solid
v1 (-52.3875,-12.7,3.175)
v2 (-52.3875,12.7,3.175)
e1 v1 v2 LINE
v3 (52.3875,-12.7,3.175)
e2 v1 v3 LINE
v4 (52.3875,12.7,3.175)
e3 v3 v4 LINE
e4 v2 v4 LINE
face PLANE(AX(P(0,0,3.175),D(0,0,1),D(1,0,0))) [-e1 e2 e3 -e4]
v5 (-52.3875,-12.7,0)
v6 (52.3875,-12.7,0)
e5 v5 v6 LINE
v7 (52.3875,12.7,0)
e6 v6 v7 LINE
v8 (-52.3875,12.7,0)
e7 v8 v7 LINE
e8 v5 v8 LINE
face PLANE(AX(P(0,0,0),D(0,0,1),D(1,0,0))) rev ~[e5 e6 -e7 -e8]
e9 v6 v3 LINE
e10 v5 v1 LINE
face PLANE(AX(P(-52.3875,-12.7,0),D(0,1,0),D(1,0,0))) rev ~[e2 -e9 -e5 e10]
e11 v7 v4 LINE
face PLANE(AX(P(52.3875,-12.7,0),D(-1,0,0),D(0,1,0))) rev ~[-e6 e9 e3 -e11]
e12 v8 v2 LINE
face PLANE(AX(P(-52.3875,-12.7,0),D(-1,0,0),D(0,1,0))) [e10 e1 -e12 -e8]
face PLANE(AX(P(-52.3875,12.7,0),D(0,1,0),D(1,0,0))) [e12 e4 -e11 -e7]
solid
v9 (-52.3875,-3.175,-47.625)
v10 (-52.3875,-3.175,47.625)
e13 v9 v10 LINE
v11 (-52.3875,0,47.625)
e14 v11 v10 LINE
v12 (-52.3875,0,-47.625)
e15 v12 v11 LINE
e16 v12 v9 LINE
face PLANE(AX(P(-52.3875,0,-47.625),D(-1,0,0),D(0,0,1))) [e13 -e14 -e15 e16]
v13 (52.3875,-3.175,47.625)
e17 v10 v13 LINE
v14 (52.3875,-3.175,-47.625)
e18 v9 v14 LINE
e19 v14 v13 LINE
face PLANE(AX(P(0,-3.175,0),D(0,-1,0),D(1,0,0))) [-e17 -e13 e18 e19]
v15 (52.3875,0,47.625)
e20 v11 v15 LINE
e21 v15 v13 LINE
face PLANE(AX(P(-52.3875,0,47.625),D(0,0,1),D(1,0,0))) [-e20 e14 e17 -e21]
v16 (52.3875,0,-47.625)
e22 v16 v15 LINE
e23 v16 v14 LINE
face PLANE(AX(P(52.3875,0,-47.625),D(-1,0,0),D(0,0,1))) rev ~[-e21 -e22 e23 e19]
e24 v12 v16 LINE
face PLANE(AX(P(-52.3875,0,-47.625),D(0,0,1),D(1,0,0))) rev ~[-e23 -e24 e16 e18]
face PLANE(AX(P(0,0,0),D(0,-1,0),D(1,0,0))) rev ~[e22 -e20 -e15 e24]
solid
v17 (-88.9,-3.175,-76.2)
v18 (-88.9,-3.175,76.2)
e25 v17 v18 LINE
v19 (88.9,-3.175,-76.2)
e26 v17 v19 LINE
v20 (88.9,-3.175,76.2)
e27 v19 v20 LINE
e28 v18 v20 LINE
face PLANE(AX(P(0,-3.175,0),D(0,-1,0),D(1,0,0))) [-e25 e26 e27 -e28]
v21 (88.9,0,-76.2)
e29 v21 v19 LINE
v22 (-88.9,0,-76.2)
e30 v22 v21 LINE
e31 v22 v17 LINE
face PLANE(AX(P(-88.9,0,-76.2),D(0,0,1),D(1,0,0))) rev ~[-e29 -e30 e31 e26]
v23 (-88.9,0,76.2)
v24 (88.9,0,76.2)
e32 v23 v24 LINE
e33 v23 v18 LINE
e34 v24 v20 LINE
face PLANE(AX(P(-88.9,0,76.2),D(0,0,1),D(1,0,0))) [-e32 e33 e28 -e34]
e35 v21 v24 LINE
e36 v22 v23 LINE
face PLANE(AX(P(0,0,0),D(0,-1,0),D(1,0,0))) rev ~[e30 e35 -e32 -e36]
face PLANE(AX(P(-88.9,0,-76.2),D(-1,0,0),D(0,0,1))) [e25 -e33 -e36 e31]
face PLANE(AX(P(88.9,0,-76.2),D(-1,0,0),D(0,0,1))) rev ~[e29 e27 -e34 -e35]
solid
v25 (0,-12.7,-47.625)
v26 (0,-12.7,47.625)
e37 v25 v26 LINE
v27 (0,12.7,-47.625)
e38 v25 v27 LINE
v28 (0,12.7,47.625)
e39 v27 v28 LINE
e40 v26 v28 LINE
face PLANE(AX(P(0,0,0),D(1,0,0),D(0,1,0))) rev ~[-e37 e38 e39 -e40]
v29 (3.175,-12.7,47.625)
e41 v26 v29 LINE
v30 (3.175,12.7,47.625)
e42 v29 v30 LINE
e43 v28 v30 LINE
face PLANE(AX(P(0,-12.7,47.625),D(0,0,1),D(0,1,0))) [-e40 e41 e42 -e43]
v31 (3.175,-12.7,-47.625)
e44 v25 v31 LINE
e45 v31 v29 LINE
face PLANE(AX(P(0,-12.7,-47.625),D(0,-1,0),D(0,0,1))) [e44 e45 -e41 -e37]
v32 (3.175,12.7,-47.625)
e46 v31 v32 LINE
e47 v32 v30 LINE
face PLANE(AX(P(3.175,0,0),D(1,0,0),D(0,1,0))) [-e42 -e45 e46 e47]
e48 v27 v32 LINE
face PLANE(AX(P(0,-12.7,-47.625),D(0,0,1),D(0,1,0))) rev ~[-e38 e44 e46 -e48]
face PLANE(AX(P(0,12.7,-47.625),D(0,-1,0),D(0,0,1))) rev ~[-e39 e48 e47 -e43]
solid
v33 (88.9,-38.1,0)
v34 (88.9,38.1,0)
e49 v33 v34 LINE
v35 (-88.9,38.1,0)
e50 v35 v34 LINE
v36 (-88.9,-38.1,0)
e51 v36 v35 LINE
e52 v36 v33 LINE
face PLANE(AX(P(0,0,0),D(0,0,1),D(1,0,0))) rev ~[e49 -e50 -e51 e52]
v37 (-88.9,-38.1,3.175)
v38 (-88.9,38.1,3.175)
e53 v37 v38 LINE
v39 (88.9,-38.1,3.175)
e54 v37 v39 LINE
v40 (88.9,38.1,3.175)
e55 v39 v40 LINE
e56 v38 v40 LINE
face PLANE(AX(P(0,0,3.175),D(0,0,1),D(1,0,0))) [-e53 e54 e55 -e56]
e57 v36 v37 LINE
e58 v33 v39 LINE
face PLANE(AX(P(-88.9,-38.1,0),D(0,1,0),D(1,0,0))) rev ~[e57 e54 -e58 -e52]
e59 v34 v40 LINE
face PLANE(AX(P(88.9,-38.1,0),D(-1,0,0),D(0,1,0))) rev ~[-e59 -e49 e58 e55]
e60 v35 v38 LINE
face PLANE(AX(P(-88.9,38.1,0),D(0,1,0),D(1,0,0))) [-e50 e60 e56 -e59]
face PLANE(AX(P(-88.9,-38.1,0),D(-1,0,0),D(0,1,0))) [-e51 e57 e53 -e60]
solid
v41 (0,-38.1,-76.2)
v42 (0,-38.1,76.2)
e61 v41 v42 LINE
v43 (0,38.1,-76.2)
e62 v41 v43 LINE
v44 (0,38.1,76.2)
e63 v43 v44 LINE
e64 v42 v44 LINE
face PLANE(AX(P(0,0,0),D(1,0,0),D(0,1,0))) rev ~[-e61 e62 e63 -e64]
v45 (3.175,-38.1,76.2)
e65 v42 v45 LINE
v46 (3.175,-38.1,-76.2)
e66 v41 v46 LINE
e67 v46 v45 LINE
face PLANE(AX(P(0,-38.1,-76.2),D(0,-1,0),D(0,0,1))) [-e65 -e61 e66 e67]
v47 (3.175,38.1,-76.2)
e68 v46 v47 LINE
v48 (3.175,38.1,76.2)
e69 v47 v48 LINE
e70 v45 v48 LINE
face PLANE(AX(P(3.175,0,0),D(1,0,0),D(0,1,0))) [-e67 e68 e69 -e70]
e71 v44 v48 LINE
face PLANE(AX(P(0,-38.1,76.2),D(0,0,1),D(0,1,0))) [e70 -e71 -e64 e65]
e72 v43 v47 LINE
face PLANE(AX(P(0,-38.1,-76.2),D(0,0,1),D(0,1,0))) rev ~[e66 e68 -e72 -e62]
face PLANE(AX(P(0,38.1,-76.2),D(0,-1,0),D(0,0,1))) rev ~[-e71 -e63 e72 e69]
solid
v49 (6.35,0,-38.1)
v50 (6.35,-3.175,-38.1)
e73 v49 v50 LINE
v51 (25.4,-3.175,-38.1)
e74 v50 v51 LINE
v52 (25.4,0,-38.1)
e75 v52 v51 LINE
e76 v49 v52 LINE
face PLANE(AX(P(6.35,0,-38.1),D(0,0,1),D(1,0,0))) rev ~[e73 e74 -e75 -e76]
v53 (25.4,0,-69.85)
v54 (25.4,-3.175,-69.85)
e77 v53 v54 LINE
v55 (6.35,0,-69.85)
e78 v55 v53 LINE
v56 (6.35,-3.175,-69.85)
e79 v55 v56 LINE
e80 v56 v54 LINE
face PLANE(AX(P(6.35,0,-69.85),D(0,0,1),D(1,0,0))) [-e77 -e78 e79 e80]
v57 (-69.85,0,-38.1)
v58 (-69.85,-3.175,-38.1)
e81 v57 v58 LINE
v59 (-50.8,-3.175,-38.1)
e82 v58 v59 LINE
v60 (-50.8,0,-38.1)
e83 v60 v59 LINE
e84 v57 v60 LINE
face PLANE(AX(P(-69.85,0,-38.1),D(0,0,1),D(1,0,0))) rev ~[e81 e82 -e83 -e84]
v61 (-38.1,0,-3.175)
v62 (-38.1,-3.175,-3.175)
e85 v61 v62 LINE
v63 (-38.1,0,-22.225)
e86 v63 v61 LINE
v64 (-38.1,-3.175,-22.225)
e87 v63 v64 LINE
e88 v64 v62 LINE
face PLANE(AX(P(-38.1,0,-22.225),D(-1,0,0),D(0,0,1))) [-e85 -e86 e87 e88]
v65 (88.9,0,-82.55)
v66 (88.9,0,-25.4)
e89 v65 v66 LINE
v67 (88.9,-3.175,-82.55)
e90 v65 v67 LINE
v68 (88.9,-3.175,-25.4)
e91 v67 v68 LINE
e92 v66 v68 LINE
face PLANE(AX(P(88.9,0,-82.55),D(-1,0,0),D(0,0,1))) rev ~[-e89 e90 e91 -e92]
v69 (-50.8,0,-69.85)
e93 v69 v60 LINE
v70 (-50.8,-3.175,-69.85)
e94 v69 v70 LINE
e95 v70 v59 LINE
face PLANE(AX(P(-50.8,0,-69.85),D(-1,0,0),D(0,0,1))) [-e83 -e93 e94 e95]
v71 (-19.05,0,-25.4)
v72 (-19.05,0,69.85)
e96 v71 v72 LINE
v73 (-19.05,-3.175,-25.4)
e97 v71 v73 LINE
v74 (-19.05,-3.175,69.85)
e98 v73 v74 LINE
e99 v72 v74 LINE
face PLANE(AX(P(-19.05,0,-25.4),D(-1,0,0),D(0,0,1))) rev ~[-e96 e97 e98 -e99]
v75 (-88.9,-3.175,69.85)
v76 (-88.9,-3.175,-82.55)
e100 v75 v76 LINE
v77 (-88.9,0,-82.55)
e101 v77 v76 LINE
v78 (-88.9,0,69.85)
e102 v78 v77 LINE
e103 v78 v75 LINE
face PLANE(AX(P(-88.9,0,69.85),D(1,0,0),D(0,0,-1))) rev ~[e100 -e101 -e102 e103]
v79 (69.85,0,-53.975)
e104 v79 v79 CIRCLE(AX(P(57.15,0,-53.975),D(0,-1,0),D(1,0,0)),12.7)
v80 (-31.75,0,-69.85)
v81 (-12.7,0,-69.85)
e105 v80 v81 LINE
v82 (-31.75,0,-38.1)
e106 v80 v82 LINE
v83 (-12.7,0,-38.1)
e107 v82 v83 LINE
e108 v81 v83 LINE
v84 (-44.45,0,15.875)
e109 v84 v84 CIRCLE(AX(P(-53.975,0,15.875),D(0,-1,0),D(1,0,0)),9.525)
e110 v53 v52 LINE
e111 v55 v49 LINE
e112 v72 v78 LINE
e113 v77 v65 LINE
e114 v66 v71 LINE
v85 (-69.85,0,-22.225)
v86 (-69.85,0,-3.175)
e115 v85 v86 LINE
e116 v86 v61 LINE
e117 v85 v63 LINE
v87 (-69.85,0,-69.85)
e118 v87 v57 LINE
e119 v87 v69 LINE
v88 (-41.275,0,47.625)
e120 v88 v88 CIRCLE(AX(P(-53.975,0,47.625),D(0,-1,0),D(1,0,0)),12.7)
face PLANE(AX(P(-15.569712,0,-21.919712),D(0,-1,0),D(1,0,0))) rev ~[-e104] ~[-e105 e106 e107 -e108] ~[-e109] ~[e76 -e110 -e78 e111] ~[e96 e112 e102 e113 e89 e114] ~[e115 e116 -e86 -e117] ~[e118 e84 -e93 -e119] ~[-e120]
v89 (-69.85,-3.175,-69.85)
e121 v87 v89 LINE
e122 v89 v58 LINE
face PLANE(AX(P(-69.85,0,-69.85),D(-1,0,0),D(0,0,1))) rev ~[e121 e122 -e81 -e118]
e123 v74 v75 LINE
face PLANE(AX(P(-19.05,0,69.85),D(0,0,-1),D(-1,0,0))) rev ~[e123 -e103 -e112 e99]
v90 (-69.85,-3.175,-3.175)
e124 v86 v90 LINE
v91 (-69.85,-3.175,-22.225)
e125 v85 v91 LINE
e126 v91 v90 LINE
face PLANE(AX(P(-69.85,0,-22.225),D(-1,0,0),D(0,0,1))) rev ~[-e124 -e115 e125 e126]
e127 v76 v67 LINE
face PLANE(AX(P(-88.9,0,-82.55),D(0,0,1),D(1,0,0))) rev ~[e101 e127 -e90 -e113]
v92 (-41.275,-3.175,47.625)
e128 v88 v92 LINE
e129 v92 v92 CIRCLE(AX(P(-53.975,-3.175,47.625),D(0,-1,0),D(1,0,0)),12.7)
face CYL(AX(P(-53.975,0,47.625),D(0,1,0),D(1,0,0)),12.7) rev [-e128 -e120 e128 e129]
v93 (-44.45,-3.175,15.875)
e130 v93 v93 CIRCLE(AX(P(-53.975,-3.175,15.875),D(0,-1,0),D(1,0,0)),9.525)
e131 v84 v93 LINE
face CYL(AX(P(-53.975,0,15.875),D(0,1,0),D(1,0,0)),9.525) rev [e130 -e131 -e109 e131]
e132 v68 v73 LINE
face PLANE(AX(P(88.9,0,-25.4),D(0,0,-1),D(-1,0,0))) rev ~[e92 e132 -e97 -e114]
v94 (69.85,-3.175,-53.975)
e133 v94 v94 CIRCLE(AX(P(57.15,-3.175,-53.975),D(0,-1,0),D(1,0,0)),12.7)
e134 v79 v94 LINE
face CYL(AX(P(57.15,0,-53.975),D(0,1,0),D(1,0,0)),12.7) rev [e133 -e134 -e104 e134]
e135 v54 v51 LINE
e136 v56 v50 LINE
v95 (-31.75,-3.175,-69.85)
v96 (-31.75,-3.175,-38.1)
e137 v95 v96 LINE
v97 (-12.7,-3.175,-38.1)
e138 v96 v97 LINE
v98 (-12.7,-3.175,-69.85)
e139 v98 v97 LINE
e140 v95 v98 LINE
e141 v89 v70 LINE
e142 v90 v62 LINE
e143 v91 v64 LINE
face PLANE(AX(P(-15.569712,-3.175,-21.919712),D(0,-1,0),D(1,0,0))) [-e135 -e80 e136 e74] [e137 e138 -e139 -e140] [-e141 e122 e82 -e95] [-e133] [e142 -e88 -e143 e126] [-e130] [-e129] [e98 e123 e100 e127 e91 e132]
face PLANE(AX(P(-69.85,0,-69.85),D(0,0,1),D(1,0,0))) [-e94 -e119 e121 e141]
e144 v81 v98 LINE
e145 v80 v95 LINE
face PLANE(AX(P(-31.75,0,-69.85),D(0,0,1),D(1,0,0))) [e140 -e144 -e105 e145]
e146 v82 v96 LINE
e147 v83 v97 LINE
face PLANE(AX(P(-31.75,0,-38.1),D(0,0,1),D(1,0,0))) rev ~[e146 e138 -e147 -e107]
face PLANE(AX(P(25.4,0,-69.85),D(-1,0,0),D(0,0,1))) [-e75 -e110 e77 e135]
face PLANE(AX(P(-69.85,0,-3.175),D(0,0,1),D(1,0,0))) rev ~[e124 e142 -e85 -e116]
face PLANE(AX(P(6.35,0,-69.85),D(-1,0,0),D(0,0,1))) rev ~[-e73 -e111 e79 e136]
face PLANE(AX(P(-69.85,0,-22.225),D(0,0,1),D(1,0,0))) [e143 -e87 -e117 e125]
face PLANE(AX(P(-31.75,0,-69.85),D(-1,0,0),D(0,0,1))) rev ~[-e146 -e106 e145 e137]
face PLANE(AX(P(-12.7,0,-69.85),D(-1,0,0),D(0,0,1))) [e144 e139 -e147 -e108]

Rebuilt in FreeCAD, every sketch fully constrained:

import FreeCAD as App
import Part
import Sketcher

V = App.Vector
Q = App.Units.Quantity


def add_polygon(sketch, points):
    """Adds a closed chain of lines whose ends are joined by coincident constraints."""
    first, n = sketch.GeometryCount, len(points)
    for a, b in zip(points, points[1:] + points[:1]):
        sketch.addGeometry(Part.LineSegment(App.Vector(*a, 0), App.Vector(*b, 0)), False)
    for i in range(n):
        sketch.addConstraint(Sketcher.Constraint("Coincident", first + i, 2, first + (i + 1) % n, 1))

doc = App.newDocument("Part")
body = doc.addObject("PartDesign::Body", "Body")

# Sketch on XZ plane
sketch1 = body.newObject("Sketcher::SketchObject", "Sketch")
sketch1.AttachmentSupport = (doc.getObject("XZ_Plane"), [""])
sketch1.MapMode = "FlatFace"
add_polygon(sketch1, [(-19, -25), (-19, 70), (-89, 70), (-89, -83), (89, -83), (89, -25)])  # lines 0-5
add_polygon(sketch1, [(-51, -70), (-70, -70), (-70, -38), (-51, -38)])  # lines 6-9
add_polygon(sketch1, [(-13, -70), (-32, -70), (-32, -38), (-13, -38)])  # lines 10-13
add_polygon(sketch1, [(-38, -22), (-70, -22), (-70, -3), (-38, -3)])  # lines 14-17
add_polygon(sketch1, [(25, -70), (6, -70), (6, -38), (25, -38)])  # lines 18-21
sketch1.addGeometry(Part.Circle(V(57, -54, 0), V(0, 0, 1), 13), False)  # 22
sketch1.addGeometry(Part.Circle(V(-54, 16, 0), V(0, 0, 1), 10), False)  # 23
sketch1.addGeometry(Part.Circle(V(-54, 48, 0), V(0, 0, 1), 13), False)  # 24
sketch1.addConstraint([
    Sketcher.Constraint("Vertical", 0),
    Sketcher.Constraint("Horizontal", 1),
    Sketcher.Constraint("Vertical", 2),
    Sketcher.Constraint("Horizontal", 3),
    Sketcher.Constraint("Vertical", 4),
    Sketcher.Constraint("Horizontal", 5),
    Sketcher.Constraint("Horizontal", 6),
    Sketcher.Constraint("Vertical", 7),
    Sketcher.Constraint("Horizontal", 8),
    Sketcher.Constraint("Vertical", 9),
    Sketcher.Constraint("Horizontal", 10),
    Sketcher.Constraint("Vertical", 11),
    Sketcher.Constraint("Horizontal", 12),
    Sketcher.Constraint("Vertical", 13),
    Sketcher.Constraint("Horizontal", 14),
    Sketcher.Constraint("Vertical", 15),
    Sketcher.Constraint("Horizontal", 16),
    Sketcher.Constraint("Vertical", 17),
    Sketcher.Constraint("Horizontal", 18),
    Sketcher.Constraint("Vertical", 19),
    Sketcher.Constraint("Horizontal", 20),
    Sketcher.Constraint("Vertical", 21),
    Sketcher.Constraint("Equal", 22, 24),
    Sketcher.Constraint("Horizontal", 9, 2, 10, 2),
    Sketcher.Constraint("Horizontal", 8, 2, 11, 2),
    Sketcher.Constraint("Horizontal", 13, 2, 18, 2),
    Sketcher.Constraint("Horizontal", 12, 2, 19, 2),
    Sketcher.Constraint("Vertical", 23, 3, 24, 3),
    Sketcher.Constraint("Vertical", 7, 2, 14, 2),
    Sketcher.Constraint("Equal", 8, 10),
    Sketcher.Constraint("Equal", 12, 18),
    Sketcher.Constraint("Equal", 16, 7),
    Sketcher.Constraint("Equal", 20, 15),
    Sketcher.Constraint("Diameter", 22, Q("1 in")),
    Sketcher.Constraint("Diameter", 23, Q("0.75 in")),
    Sketcher.Constraint("DistanceX", 3, 1, 3, 2, Q("7 in")),
    Sketcher.Constraint("DistanceY", 2, 2, 2, 1, Q("6 in")),
    Sketcher.Constraint("DistanceY", 4, 2, -1, 1, Q("1 in")),
    Sketcher.Constraint("DistanceX", 8, 2, -1, 1, Q("2 in")),
    Sketcher.Constraint("DistanceX", -1, 1, 20, 2, Q("1 in")),
    Sketcher.Constraint("DistanceY", 22, 3, 24, 3, Q("4 in")),
    Sketcher.Constraint("DistanceX", 0, 2, 22, 3, Q("3 in")),
    Sketcher.Constraint("DistanceX", 6, 2, 5, 2, Q("2 in")),
    Sketcher.Constraint("DistanceX", 17, 2, 12, 2, Q("1 in")),
    Sketcher.Constraint("DistanceX", 1, 2, 1, 1, Q("2.75 in")),
    Sketcher.Constraint("DistanceX", 6, 2, 6, 1, Q("0.75 in")),
    Sketcher.Constraint("DistanceX", 14, 2, 14, 1, Q("1.25 in")),
    Sketcher.Constraint("DistanceY", 0, 1, 0, 2, Q("3.75 in")),
    Sketcher.Constraint("DistanceY", 7, 2, -1, 1, Q("1.5 in")),
    Sketcher.Constraint("DistanceY", 14, 2, 23, 3, Q("1.5 in")),
    Sketcher.Constraint("DistanceY", 22, 3, 23, 3, Q("2.75 in")),
    Sketcher.Constraint("DistanceY", 22, 3, -1, 1, Q("2.125 in")),
    Sketcher.Constraint("DistanceX", 23, 3, -1, 1, Q("2.125 in")),
])
pad1 = body.newObject("PartDesign::Pad", "Pad")
pad1.Profile = sketch1
pad1.Length = Q("0.125 in")
body2 = doc.addObject("PartDesign::Body", "Body001")

# Sketch on XZ plane
sketch2 = body2.newObject("Sketcher::SketchObject", "Sketch001")
sketch2.AttachmentSupport = (doc.getObject("XZ_Plane001"), [""])
sketch2.MapMode = "FlatFace"
add_polygon(sketch2, [(-52, 48), (-52, -48), (52, -48), (52, 48)])  # lines 0-3
sketch2.addConstraint([
    Sketcher.Constraint("Vertical", 0),
    Sketcher.Constraint("Horizontal", 1),
    Sketcher.Constraint("Vertical", 2),
    Sketcher.Constraint("Horizontal", 3),
    Sketcher.Constraint("Symmetric", 0, 2, 2, 2, -1, 1),
    Sketcher.Constraint("DistanceY", 0, 2, 0, 1, Q("3.75 in")),
    Sketcher.Constraint("DistanceX", 1, 1, 1, 2, Q("4.125 in")),
])
pad2 = body2.newObject("PartDesign::Pad", "Pad001")
pad2.Profile = sketch2
pad2.Length = Q("0.125 in")
body3 = doc.addObject("PartDesign::Body", "Body002")

# Sketch on YZ plane
sketch3 = body3.newObject("Sketcher::SketchObject", "Sketch002")
sketch3.AttachmentSupport = (doc.getObject("YZ_Plane002"), [""])
sketch3.MapMode = "FlatFace"
add_polygon(sketch3, [(-38, 76), (-38, -76), (38, -76), (38, 76)])  # lines 0-3
sketch3.addConstraint([
    Sketcher.Constraint("Vertical", 0),
    Sketcher.Constraint("Horizontal", 1),
    Sketcher.Constraint("Vertical", 2),
    Sketcher.Constraint("Horizontal", 3),
    Sketcher.Constraint("Symmetric", 0, 2, 2, 2, -1, 1),
    Sketcher.Constraint("DistanceX", 1, 1, 1, 2, Q("3 in")),
    Sketcher.Constraint("DistanceY", 0, 2, 0, 1, Q("6 in")),
])
pad3 = body3.newObject("PartDesign::Pad", "Pad002")
pad3.Profile = sketch3
pad3.Length = Q("0.125 in")
body4 = doc.addObject("PartDesign::Body", "Body003")

# Sketch on XY plane
sketch4 = body4.newObject("Sketcher::SketchObject", "Sketch003")
sketch4.AttachmentSupport = (doc.getObject("XY_Plane003"), [""])
sketch4.MapMode = "FlatFace"
add_polygon(sketch4, [(-89, 38), (-89, -38), (89, -38), (89, 38)])  # lines 0-3
sketch4.addConstraint([
    Sketcher.Constraint("Vertical", 0),
    Sketcher.Constraint("Horizontal", 1),
    Sketcher.Constraint("Vertical", 2),
    Sketcher.Constraint("Horizontal", 3),
    Sketcher.Constraint("Symmetric", 0, 2, 2, 2, -1, 1),
    Sketcher.Constraint("DistanceX", 1, 1, 1, 2, Q("7 in")),
    Sketcher.Constraint("DistanceY", 0, 2, 0, 1, Q("3 in")),
])
pad4 = body4.newObject("PartDesign::Pad", "Pad003")
pad4.Profile = sketch4
pad4.Length = Q("0.125 in")
body5 = doc.addObject("PartDesign::Body", "Body004")

# Sketch on XZ plane
sketch5 = body5.newObject("Sketcher::SketchObject", "Sketch004")
sketch5.AttachmentSupport = (doc.getObject("XZ_Plane004"), [""])
sketch5.MapMode = "FlatFace"
add_polygon(sketch5, [(-89, 76), (-89, -76), (89, -76), (89, 76)])  # lines 0-3
sketch5.addConstraint([
    Sketcher.Constraint("Vertical", 0),
    Sketcher.Constraint("Horizontal", 1),
    Sketcher.Constraint("Vertical", 2),
    Sketcher.Constraint("Horizontal", 3),
    Sketcher.Constraint("Symmetric", 0, 2, 2, 2, -1, 1),
    Sketcher.Constraint("DistanceX", 1, 1, 1, 2, Q("7 in")),
    Sketcher.Constraint("DistanceY", 0, 2, 0, 1, Q("6 in")),
])
pad5 = body5.newObject("PartDesign::Pad", "Pad004")
pad5.Profile = sketch5
pad5.Length = Q("0.125 in")
body6 = doc.addObject("PartDesign::Body", "Body005")

# Sketch on YZ plane
sketch6 = body6.newObject("Sketcher::SketchObject", "Sketch005")
sketch6.AttachmentSupport = (doc.getObject("YZ_Plane005"), [""])
sketch6.MapMode = "FlatFace"
add_polygon(sketch6, [(-13, 48), (-13, -48), (13, -48), (13, 48)])  # lines 0-3
sketch6.addConstraint([
    Sketcher.Constraint("Vertical", 0),
    Sketcher.Constraint("Horizontal", 1),
    Sketcher.Constraint("Vertical", 2),
    Sketcher.Constraint("Horizontal", 3),
    Sketcher.Constraint("Symmetric", 0, 2, 2, 2, -1, 1),
    Sketcher.Constraint("DistanceX", 1, 1, 1, 2, Q("1 in")),
    Sketcher.Constraint("DistanceY", 0, 2, 0, 1, Q("3.75 in")),
])
pad6 = body6.newObject("PartDesign::Pad", "Pad005")
pad6.Profile = sketch6
pad6.Length = Q("0.125 in")
body7 = doc.addObject("PartDesign::Body", "Body006")

# Sketch on XY plane
sketch7 = body7.newObject("Sketcher::SketchObject", "Sketch006")
sketch7.AttachmentSupport = (doc.getObject("XY_Plane006"), [""])
sketch7.MapMode = "FlatFace"
add_polygon(sketch7, [(-52, 13), (-52, -13), (52, -13), (52, 13)])  # lines 0-3
sketch7.addConstraint([
    Sketcher.Constraint("Vertical", 0),
    Sketcher.Constraint("Horizontal", 1),
    Sketcher.Constraint("Vertical", 2),
    Sketcher.Constraint("Horizontal", 3),
    Sketcher.Constraint("Symmetric", 0, 2, 2, 2, -1, 1),
    Sketcher.Constraint("DistanceY", 0, 2, 0, 1, Q("1 in")),
    Sketcher.Constraint("DistanceX", 1, 1, 1, 2, Q("4.125 in")),
])
pad7 = body7.newObject("PartDesign::Pad", "Pad006")
pad7.Profile = sketch7
pad7.Length = Q("0.125 in")

doc.recompute()
